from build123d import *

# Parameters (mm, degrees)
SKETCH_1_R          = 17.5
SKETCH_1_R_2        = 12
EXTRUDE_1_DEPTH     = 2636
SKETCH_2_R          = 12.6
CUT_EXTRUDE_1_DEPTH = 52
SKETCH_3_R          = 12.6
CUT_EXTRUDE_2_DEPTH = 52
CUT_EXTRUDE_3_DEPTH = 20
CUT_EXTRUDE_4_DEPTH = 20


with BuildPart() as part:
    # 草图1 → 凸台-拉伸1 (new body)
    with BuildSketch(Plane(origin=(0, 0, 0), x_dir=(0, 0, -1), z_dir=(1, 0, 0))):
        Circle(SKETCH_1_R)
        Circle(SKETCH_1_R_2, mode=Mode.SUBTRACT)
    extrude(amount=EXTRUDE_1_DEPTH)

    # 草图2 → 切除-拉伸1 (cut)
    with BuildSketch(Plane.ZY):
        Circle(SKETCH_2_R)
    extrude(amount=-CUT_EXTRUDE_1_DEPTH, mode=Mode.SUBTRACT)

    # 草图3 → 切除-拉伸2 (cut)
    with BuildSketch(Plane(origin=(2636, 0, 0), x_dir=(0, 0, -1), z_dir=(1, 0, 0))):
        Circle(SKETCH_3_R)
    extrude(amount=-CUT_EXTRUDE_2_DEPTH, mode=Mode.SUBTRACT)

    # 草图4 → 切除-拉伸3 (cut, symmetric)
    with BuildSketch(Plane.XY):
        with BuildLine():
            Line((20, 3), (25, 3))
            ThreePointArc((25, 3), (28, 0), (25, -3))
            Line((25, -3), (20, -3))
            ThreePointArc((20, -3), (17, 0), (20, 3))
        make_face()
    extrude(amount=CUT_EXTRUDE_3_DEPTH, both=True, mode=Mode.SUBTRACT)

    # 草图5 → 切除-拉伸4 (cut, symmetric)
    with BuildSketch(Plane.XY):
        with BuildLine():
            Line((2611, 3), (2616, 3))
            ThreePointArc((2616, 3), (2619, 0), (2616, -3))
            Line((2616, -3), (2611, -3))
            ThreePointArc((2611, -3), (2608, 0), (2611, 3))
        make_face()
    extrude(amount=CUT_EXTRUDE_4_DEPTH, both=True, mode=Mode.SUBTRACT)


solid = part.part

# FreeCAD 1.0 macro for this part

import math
import FreeCAD as App
import Part
import Sketcher
Q = App.Units.Quantity

doc = App.newDocument("Part")
body = doc.addObject("PartDesign::Body", "Body")

sketch1 = body.newObject("Sketcher::SketchObject", "Sketch")
sketch1.AttachmentSupport = (doc.getObject("YZ_Plane"), [""])
sketch1.MapMode = "FlatFace"
sketch1.addGeometry([
    Part.Circle(App.Vector(0, 0, 0), App.Vector(0, 0, 1), 18),
    Part.Circle(App.Vector(0, 0, 0), App.Vector(0, 0, 1), 12),
], False)
sketch1.addConstraint([
    Sketcher.Constraint("Coincident", 0, 3, -1, 1),
    Sketcher.Constraint("Coincident", 1, 3, -1, 1),
    Sketcher.Constraint("Diameter", 0, Q("35 mm")),
    Sketcher.Constraint("Diameter", 1, Q("24 mm")),
])
pad1 = body.newObject("PartDesign::Pad", "Pad")
pad1.Profile = sketch1
pad1.Length = 2636

sketch2 = body.newObject("Sketcher::SketchObject", "Sketch001")
sketch2.AttachmentSupport = (doc.getObject("YZ_Plane"), [""])
sketch2.MapMode = "FlatFace"
sketch2.addGeometry(Part.Circle(App.Vector(0, 0, 0), App.Vector(0, 0, 1), 13), False)
sketch2.addConstraint([
    Sketcher.Constraint("Coincident", 0, 3, -1, 1),
    Sketcher.Constraint("Diameter", 0, Q("25.2 mm")),
])
pocket1 = body.newObject("PartDesign::Pocket", "Pocket")
pocket1.Profile = sketch2
pocket1.Length = 52
pocket1.Reversed = True

sketch3 = body.newObject("Sketcher::SketchObject", "Sketch002")
sketch3.AttachmentSupport = (doc.getObject("YZ_Plane"), [""])
sketch3.MapMode = "FlatFace"
sketch3.AttachmentOffset = App.Placement(App.Vector(0, 0, 2636), App.Rotation())
sketch3.addGeometry(Part.Circle(App.Vector(0, 0, 0), App.Vector(0, 0, 1), 13), False)
sketch3.addConstraint([
    Sketcher.Constraint("Coincident", 0, 3, -1, 1),
    Sketcher.Constraint("Diameter", 0, Q("25.2 mm")),
])
pocket2 = body.newObject("PartDesign::Pocket", "Pocket001")
pocket2.Profile = sketch3
pocket2.Length = 52

sketch4 = body.newObject("Sketcher::SketchObject", "Sketch003")
sketch4.AttachmentSupport = (doc.getObject("XY_Plane"), [""])
sketch4.MapMode = "FlatFace"
sketch4.addGeometry([
    Part.LineSegment(App.Vector(25, 3, 0), App.Vector(20, 3, 0)),
    Part.ArcOfCircle(Part.Circle(App.Vector(20, 0, 0), App.Vector(0, 0, 1), 3), math.radians(90), math.radians(270)),
    Part.LineSegment(App.Vector(20, -3, 0), App.Vector(25, -3, 0)),
    Part.ArcOfCircle(Part.Circle(App.Vector(25, 0, 0), App.Vector(0, 0, 1), 3), math.radians(-90), math.radians(90)),
], False)
sketch4.addConstraint([
    Sketcher.Constraint("Tangent", 0, 2, 1, 1),
    Sketcher.Constraint("Tangent", 1, 2, 2, 1),
    Sketcher.Constraint("Tangent", 2, 2, 3, 1),
    Sketcher.Constraint("Tangent", 3, 2, 0, 1),
    Sketcher.Constraint("Horizontal", 0),
    Sketcher.Constraint("Horizontal", 2),
    Sketcher.Constraint("PointOnObject", 1, 3, -1),
    Sketcher.Constraint("Radius", 1, Q("3 mm")),
    Sketcher.Constraint("DistanceX", 0, 2, 0, 1, Q("5 mm")),
    Sketcher.Constraint("DistanceX", -1, 1, 1, 3, Q("20 mm")),
])
pocket3 = body.newObject("PartDesign::Pocket", "Pocket002")
pocket3.Profile = sketch4
pocket3.Length = 40
pocket3.Midplane = True

sketch5 = body.newObject("Sketcher::SketchObject", "Sketch004")
sketch5.AttachmentSupport = (doc.getObject("XY_Plane"), [""])
sketch5.MapMode = "FlatFace"
sketch5.addGeometry([
    Part.LineSegment(App.Vector(2616, 3, 0), App.Vector(2611, 3, 0)),
    Part.ArcOfCircle(Part.Circle(App.Vector(2611, 0, 0), App.Vector(0, 0, 1), 3), math.radians(90), math.radians(270)),
    Part.LineSegment(App.Vector(2611, -3, 0), App.Vector(2616, -3, 0)),
    Part.ArcOfCircle(Part.Circle(App.Vector(2616, 0, 0), App.Vector(0, 0, 1), 3), math.radians(-90), math.radians(90)),
], False)
sketch5.addConstraint([
    Sketcher.Constraint("Tangent", 0, 2, 1, 1),
    Sketcher.Constraint("Tangent", 1, 2, 2, 1),
    Sketcher.Constraint("Tangent", 2, 2, 3, 1),
    Sketcher.Constraint("Tangent", 3, 2, 0, 1),
    Sketcher.Constraint("Horizontal", 0),
    Sketcher.Constraint("Horizontal", 2),
    Sketcher.Constraint("PointOnObject", 1, 3, -1),
    Sketcher.Constraint("Radius", 1, Q("3 mm")),
    Sketcher.Constraint("DistanceX", 0, 2, 0, 1, Q("5 mm")),
    Sketcher.Constraint("DistanceX", -1, 1, 1, 3, Q("2611 mm")),
])
pocket4 = body.newObject("PartDesign::Pocket", "Pocket003")
pocket4.Profile = sketch5
pocket4.Length = 40
pocket4.Midplane = True

doc.recompute()
